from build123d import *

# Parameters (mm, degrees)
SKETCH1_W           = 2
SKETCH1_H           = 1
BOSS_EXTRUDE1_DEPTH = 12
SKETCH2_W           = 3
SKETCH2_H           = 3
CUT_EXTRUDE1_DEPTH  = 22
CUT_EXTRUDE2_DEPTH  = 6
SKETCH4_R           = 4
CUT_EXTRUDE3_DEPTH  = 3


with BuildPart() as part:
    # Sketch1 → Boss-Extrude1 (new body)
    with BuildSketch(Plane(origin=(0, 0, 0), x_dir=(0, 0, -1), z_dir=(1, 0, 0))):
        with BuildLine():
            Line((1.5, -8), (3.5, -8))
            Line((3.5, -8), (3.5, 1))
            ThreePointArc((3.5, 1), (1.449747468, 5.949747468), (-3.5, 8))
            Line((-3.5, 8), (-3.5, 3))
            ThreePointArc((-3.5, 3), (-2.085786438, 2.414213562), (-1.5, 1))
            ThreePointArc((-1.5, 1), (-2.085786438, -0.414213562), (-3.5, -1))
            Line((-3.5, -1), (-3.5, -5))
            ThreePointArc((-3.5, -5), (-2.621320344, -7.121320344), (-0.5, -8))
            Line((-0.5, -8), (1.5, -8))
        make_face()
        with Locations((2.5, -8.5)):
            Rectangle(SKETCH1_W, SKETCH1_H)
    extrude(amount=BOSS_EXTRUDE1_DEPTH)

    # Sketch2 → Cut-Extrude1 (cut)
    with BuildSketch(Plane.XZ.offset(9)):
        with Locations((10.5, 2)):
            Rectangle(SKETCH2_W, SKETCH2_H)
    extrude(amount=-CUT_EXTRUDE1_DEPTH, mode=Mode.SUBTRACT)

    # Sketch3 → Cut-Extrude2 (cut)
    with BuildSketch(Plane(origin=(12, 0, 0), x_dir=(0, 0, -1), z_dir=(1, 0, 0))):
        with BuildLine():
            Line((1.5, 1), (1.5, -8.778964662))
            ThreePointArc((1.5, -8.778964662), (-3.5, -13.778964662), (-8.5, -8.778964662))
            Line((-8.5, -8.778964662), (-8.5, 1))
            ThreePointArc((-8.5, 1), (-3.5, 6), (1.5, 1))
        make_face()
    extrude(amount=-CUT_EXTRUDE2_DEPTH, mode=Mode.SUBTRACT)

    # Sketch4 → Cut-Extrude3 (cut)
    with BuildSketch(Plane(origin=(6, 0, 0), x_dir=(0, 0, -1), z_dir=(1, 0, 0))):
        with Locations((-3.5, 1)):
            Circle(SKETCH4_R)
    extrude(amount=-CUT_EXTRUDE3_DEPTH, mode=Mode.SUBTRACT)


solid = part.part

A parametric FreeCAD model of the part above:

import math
import FreeCAD as App
import Part
import Sketcher
from FreeCAD import Vector


def add_polygon(sketch, points):
    """Adds a closed chain of lines whose ends are joined by coincident constraints."""
    first, n = sketch.GeometryCount, len(points)
    for a, b in zip(points, points[1:] + points[:1]):
        sketch.addGeometry(Part.LineSegment(App.Vector(*a, 0), App.Vector(*b, 0)), False)
    for i in range(n):
        sketch.addConstraint(Sketcher.Constraint("Coincident", first + i, 2, first + (i + 1) % n, 1))

doc = App.newDocument("Part")
params = doc.addObject("Spreadsheet::Sheet", "Params")
for row, (alias, value) in enumerate([
    ("sketch1_radius", "7 mm"),
    ("sketch1_radius2", "2 mm"),
    ("sketch1_radius3", "3 mm"),
    ("sketch1_width", "4 mm"),
    ("sketch1_width2", "1 mm"),
    ("pad1_length", "12 mm"),
    ("sketch2_width", "3 mm"),
    ("pocket1_length", "22 mm"),
    ("sketch3_radius", "5 mm"),
    ("pocket2_length", "6 mm"),
    ("sketch4_diameter", "8 mm"),
    ("pocket3_length", "3 mm"),
], start=1):
    params.set(f"A{row}", alias)
    params.set(f"B{row}", "=" + value)
    params.setAlias(f"B{row}", alias)

body = doc.addObject("PartDesign::Body", "Body")

sketch1 = doc.addObject("Sketcher::SketchObject", "Sketch")
body.addObject(sketch1)
sketch1.AttachmentSupport = (doc.YZ_Plane, [""])
sketch1.MapMode = "FlatFace"
sketch1.addGeometry(Part.ArcOfCircle(Part.Circle(Vector(1, 3.5, 0), Vector(0, 0, 1), 7), math.radians(-90), math.radians(0)), False)
sketch1.addGeometry(Part.LineSegment(Vector(8, 3.5, 0), Vector(3, 3.5, 0)), False)
sketch1.addGeometry(Part.ArcOfCircle(Part.Circle(Vector(1, 3.5, 0), Vector(0, 0, 1), 2), math.radians(-90), math.radians(0)), False)
sketch1.addGeometry(Part.ArcOfCircle(Part.Circle(Vector(1, 3.5, 0), Vector(0, 0, 1), 2), math.radians(-180), math.radians(-90)), False)
sketch1.addGeometry(Part.LineSegment(Vector(-1, 3.5, 0), Vector(-5, 3.5, 0)), False)
sketch1.addGeometry(Part.ArcOfCircle(Part.Circle(Vector(-5, 0.5, 0), Vector(0, 0, 1), 3), math.radians(90), math.radians(180)), False)
sketch1.addGeometry(Part.LineSegment(Vector(-8, 0.5, 0), Vector(-8, -1.5, 0)), False)
sketch1.addGeometry(Part.LineSegment(Vector(-8, -1.5, 0), Vector(-9, -1.5, 0)), False)
sketch1.addGeometry(Part.LineSegment(Vector(-9, -1.5, 0), Vector(-9, -3.5, 0)), False)
sketch1.addGeometry(Part.LineSegment(Vector(-9, -3.5, 0), Vector(1, -3.5, 0)), False)
sketch1.addConstraint(Sketcher.Constraint("Coincident", 0, 2, 1, 1))
sketch1.addConstraint(Sketcher.Constraint("Coincident", 1, 2, 2, 2))
sketch1.addConstraint(Sketcher.Constraint("Tangent", 2, 1, 3, 2))
sketch1.addConstraint(Sketcher.Constraint("Coincident", 3, 1, 4, 1))
sketch1.addConstraint(Sketcher.Constraint("Tangent", 4, 2, 5, 1))
sketch1.addConstraint(Sketcher.Constraint("Tangent", 5, 2, 6, 1))
sketch1.addConstraint(Sketcher.Constraint("Coincident", 6, 2, 7, 1))
sketch1.addConstraint(Sketcher.Constraint("Coincident", 7, 2, 8, 1))
sketch1.addConstraint(Sketcher.Constraint("Coincident", 8, 2, 9, 1))
sketch1.addConstraint(Sketcher.Constraint("Tangent", 9, 2, 0, 1))
sketch1.addConstraint(Sketcher.Constraint("Horizontal", 1))
sketch1.addConstraint(Sketcher.Constraint("Horizontal", 4))
sketch1.addConstraint(Sketcher.Constraint("Vertical", 6))
sketch1.addConstraint(Sketcher.Constraint("Horizontal", 7))
sketch1.addConstraint(Sketcher.Constraint("Vertical", 8))
sketch1.addConstraint(Sketcher.Constraint("Horizontal", 9))
sketch1.addConstraint(Sketcher.Constraint("Coincident", 2, 3, 0, 3))
sketch1.addConstraint(Sketcher.Constraint("Equal", 2, 3))
sketch1.addConstraint(Sketcher.Constraint("Symmetric", 3, 1, 9, 2, -1, 1))
sketch1.addConstraint(Sketcher.Constraint("Horizontal", 3, 3, 0, 2))
sketch1.addConstraint(Sketcher.Constraint("Horizontal", 1, 2, 3, 1))
sketch1.addConstraint(Sketcher.Constraint("Vertical", 3, 3, 2, 1))
sketch1.addConstraint(Sketcher.Constraint("Equal", 6, 8))
sketch1.addConstraint(Sketcher.Constraint("Radius", 0, 7.0))
sketch1.addConstraint(Sketcher.Constraint("Radius", 2, 2.0))
sketch1.addConstraint(Sketcher.Constraint("Radius", 5, 3.0))
sketch1.addConstraint(Sketcher.Constraint("DistanceX", 4, 2, 4, 1, 4.0))
sketch1.addConstraint(Sketcher.Constraint("DistanceX", 7, 2, 7, 1, 1.0))
sketch1.setExpression("Constraints[23]", "Params.sketch1_radius")
sketch1.setExpression("Constraints[24]", "Params.sketch1_radius2")
sketch1.setExpression("Constraints[25]", "Params.sketch1_radius3")
sketch1.setExpression("Constraints[26]", "Params.sketch1_width")
sketch1.setExpression("Constraints[27]", "Params.sketch1_width2")
pad1 = doc.addObject("PartDesign::Pad", "Pad")
body.addObject(pad1)
pad1.Profile = sketch1
pad1.setExpression("Length", "Params.pad1_length")

sketch2 = doc.addObject("Sketcher::SketchObject", "Sketch001")
body.addObject(sketch2)
sketch2.AttachmentSupport = (doc.XZ_Plane, [""])
sketch2.MapMode = "FlatFace"
sketch2.AttachmentOffset = App.Placement(Vector(0, 0, 9), App.Rotation())
add_polygon(sketch2, [(9, 3.5), (9, 0.5), (12, 0.5), (12, 3.5)])
sketch2.addConstraint(Sketcher.Constraint("Vertical", 0))
sketch2.addConstraint(Sketcher.Constraint("Horizontal", 1))
sketch2.addConstraint(Sketcher.Constraint("Vertical", 2))
sketch2.addConstraint(Sketcher.Constraint("Horizontal", 3))
sketch2.addConstraint(Sketcher.Constraint("Equal", 3, 0))
sketch2.addConstraint(Sketcher.Constraint("DistanceX", 1, 1, 1, 2, 3.0))
sketch2.addConstraint(Sketcher.Constraint("DistanceX", -1, 1, 0, 2, 9.0))
sketch2.addConstraint(Sketcher.Constraint("DistanceY", -1, 1, 0, 2, 0.5))
sketch2.setExpression("Constraints[9]", "Params.sketch2_width")
pocket1 = doc.addObject("PartDesign::Pocket", "Pocket")
body.addObject(pocket1)
pocket1.Profile = sketch2
pocket1.setExpression("Length", "Params.pocket1_length")

sketch3 = doc.addObject("Sketcher::SketchObject", "Sketch002")
body.addObject(sketch3)
sketch3.AttachmentSupport = (doc.YZ_Plane, [""])
sketch3.MapMode = "FlatFace"
sketch3.AttachmentOffset = App.Placement(Vector(0, 0, 12), App.Rotation())
sketch3.addGeometry(Part.LineSegment(Vector(-8.778965, -1.5, 0), Vector(1, -1.5, 0)), False)
sketch3.addGeometry(Part.ArcOfCircle(Part.Circle(Vector(1, 3.5, 0), Vector(0, 0, 1), 5), math.radians(-90), math.radians(90)), False)
sketch3.addGeometry(Part.LineSegment(Vector(1, 8.5, 0), Vector(-8.778965, 8.5, 0)), False)
sketch3.addGeometry(Part.ArcOfCircle(Part.Circle(Vector(-8.778965, 3.5, 0), Vector(0, 0, 1), 5), math.radians(90), math.radians(270)), False)
sketch3.addConstraint(Sketcher.Constraint("Tangent", 0, 2, 1, 1))
sketch3.addConstraint(Sketcher.Constraint("Tangent", 1, 2, 2, 1))
sketch3.addConstraint(Sketcher.Constraint("Tangent", 2, 2, 3, 1))
sketch3.addConstraint(Sketcher.Constraint("Tangent", 3, 2, 0, 1))
sketch3.addConstraint(Sketcher.Constraint("Horizontal", 0))
sketch3.addConstraint(Sketcher.Constraint("Horizontal", 2))
sketch3.addConstraint(Sketcher.Constraint("Radius", 1, 5.0))
sketch3.addConstraint(Sketcher.Constraint("DistanceX", -1, 1, 1, 3, 1.0))
sketch3.addConstraint(Sketcher.Constraint("DistanceY", -1, 1, 1, 3, 3.5))
sketch3.addConstraint(Sketcher.Constraint("DistanceX", 0, 1, 0, 2, 9.778965))
sketch3.setExpression("Constraints[6]", "Params.sketch3_radius")
pocket2 = doc.addObject("PartDesign::Pocket", "Pocket001")
body.addObject(pocket2)
pocket2.Profile = sketch3
pocket2.setExpression("Length", "Params.pocket2_length")

sketch4 = doc.addObject("Sketcher::SketchObject", "Sketch003")
body.addObject(sketch4)
sketch4.AttachmentSupport = (doc.YZ_Plane, [""])
sketch4.MapMode = "FlatFace"
sketch4.AttachmentOffset = App.Placement(Vector(0, 0, 6), App.Rotation())
sketch4.addGeometry(Part.Circle(Vector(1, 3.5, 0), Vector(0, 0, 1), 4), False)
sketch4.addConstraint(Sketcher.Constraint("Diameter", 0, 8.0))
sketch4.addConstraint(Sketcher.Constraint("DistanceX", -1, 1, 0, 3, 1.0))
sketch4.addConstraint(Sketcher.Constraint("DistanceY", -1, 1, 0, 3, 3.5))
sketch4.setExpression("Constraints[0]", "Params.sketch4_diameter")
pocket3 = doc.addObject("PartDesign::Pocket", "Pocket002")
body.addObject(pocket3)
pocket3.Profile = sketch4
pocket3.setExpression("Length", "Params.pocket3_length")

doc.recompute()
